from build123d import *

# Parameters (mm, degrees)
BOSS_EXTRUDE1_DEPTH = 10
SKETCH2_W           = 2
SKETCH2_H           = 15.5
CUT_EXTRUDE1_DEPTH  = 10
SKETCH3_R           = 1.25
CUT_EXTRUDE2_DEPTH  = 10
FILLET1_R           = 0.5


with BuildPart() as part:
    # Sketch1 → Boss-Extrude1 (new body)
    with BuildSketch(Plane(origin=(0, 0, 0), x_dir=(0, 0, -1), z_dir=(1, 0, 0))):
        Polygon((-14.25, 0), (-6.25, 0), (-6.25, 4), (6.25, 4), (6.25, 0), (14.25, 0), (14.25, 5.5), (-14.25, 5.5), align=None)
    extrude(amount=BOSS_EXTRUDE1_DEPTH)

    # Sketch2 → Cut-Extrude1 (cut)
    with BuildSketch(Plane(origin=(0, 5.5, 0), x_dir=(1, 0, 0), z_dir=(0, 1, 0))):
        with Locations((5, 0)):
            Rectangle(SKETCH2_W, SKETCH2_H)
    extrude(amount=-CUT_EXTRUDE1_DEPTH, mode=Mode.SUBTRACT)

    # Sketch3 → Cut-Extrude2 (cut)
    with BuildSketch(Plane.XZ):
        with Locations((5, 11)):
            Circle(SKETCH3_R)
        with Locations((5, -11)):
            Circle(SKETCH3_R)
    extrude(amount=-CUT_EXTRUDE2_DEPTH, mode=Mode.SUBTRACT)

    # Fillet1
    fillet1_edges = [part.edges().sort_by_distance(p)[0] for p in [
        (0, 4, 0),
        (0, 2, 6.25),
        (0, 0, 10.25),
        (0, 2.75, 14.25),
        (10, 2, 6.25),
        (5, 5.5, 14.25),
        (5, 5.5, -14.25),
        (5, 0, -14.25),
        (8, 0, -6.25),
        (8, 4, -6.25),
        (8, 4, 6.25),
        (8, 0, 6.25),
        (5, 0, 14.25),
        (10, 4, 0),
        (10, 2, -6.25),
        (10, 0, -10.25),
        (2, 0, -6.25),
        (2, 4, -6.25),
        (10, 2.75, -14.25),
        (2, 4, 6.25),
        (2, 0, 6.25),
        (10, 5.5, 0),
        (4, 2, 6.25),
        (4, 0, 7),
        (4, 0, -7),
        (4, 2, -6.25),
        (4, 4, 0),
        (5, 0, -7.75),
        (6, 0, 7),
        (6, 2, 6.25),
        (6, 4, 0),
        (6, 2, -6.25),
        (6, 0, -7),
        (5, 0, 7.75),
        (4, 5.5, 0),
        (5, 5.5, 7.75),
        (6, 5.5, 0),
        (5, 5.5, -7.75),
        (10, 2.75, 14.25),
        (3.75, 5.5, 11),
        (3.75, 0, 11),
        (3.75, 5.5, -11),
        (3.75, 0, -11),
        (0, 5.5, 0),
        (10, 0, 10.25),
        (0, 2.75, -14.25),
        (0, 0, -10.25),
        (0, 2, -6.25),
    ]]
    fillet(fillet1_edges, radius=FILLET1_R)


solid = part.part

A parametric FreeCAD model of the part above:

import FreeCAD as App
import Part
import Sketcher


def edges_at(feature, points):
    """Names of the edges that pass closest to the given points."""
    edges = feature.Shape.Edges
    near = lambda p: min(range(len(edges)), key=lambda i: edges[i].distToShape(Part.Vertex(*p))[0])
    return sorted({f"Edge{near(p) + 1}" for p in points})

doc = App.newDocument("Part")
body = doc.addObject("PartDesign::Body", "Body")

# Sketch on YZ plane
sketch1 = body.newObject("Sketcher::SketchObject", "Sketch")
sketch1.AttachmentSupport = (doc.getObject("YZ_Plane"), [""])
sketch1.MapMode = "FlatFace"
sketch1.addGeometry([
    Part.LineSegment(App.Vector(0, 14.25, 0), App.Vector(0, 6.25, 0)),  # 0
    Part.LineSegment(App.Vector(0, 6.25, 0), App.Vector(4, 6.25, 0)),  # 1
    Part.LineSegment(App.Vector(4, 6.25, 0), App.Vector(4, -6.25, 0)),  # 2
    Part.LineSegment(App.Vector(4, -6.25, 0), App.Vector(0, -6.25, 0)),  # 3
    Part.LineSegment(App.Vector(0, -6.25, 0), App.Vector(0, -14.25, 0)),  # 4
    Part.LineSegment(App.Vector(0, -14.25, 0), App.Vector(5.5, -14.25, 0)),  # 5
    Part.LineSegment(App.Vector(5.5, -14.25, 0), App.Vector(5.5, 14.25, 0)),  # 6
    Part.LineSegment(App.Vector(5.5, 14.25, 0), App.Vector(0, 14.25, 0)),  # 7
], False)
sketch1.addConstraint([
    Sketcher.Constraint("Coincident", 0, 2, 1, 1),
    Sketcher.Constraint("Coincident", 1, 2, 2, 1),
    Sketcher.Constraint("Coincident", 2, 2, 3, 1),
    Sketcher.Constraint("Coincident", 3, 2, 4, 1),
    Sketcher.Constraint("Coincident", 4, 2, 5, 1),
    Sketcher.Constraint("Coincident", 5, 2, 6, 1),
    Sketcher.Constraint("Coincident", 6, 2, 7, 1),
    Sketcher.Constraint("Coincident", 7, 2, 0, 1),
    Sketcher.Constraint("Vertical", 0),
    Sketcher.Constraint("Horizontal", 1),
    Sketcher.Constraint("Vertical", 2),
    Sketcher.Constraint("Horizontal", 3),
    Sketcher.Constraint("Vertical", 4),
    Sketcher.Constraint("Horizontal", 5),
    Sketcher.Constraint("Vertical", 6),
    Sketcher.Constraint("Horizontal", 7),
    Sketcher.Constraint("Symmetric", 0, 2, 3, 2, -1, 1),
    Sketcher.Constraint("Symmetric", 4, 2, 7, 2, -1),
    Sketcher.Constraint("DistanceX", 1, 1, 1, 2, 4.0),
    Sketcher.Constraint("DistanceY", 0, 2, 0, 1, 8.0),
    Sketcher.Constraint("DistanceX", 5, 1, 5, 2, 5.5),
    Sketcher.Constraint("DistanceY", 2, 2, 2, 1, 12.5),
])
pad1 = body.newObject("PartDesign::Pad", "Pad")
pad1.Profile = sketch1
pad1.Length = 10

# Sketch on XZ plane
sketch2 = body.newObject("Sketcher::SketchObject", "Sketch001")
sketch2.AttachmentSupport = (doc.getObject("XZ_Plane"), [""])
sketch2.MapMode = "FlatFace"
sketch2.AttachmentOffset = App.Placement(App.Vector(0, 0, -5.5), App.Rotation())
sketch2.addGeometry([
    Part.LineSegment(App.Vector(4, -7.75, 0), App.Vector(4, 7.75, 0)),
    Part.LineSegment(App.Vector(4, 7.75, 0), App.Vector(6, 7.75, 0)),
    Part.LineSegment(App.Vector(6, 7.75, 0), App.Vector(6, -7.75, 0)),
    Part.LineSegment(App.Vector(6, -7.75, 0), App.Vector(4, -7.75, 0)),
], False)
sketch2.addConstraint([
    Sketcher.Constraint("Coincident", 0, 2, 1, 1),
    Sketcher.Constraint("Coincident", 1, 2, 2, 1),
    Sketcher.Constraint("Coincident", 2, 2, 3, 1),
    Sketcher.Constraint("Coincident", 3, 2, 0, 1),
    Sketcher.Constraint("Vertical", 0),
    Sketcher.Constraint("Horizontal", 1),
    Sketcher.Constraint("Vertical", 2),
    Sketcher.Constraint("Horizontal", 3),
    Sketcher.Constraint("DistanceX", 1, 1, 1, 2, 2.0),
    Sketcher.Constraint("DistanceY", 0, 1, 0, 2, 15.5),
    Sketcher.Constraint("DistanceX", -1, 1, 0, 2, 4.0),
    Sketcher.Constraint("DistanceY", -1, 1, 0, 2, 7.75),
])
pocket1 = body.newObject("PartDesign::Pocket", "Pocket")
pocket1.Profile = sketch2
pocket1.Length = 10
pocket1.Reversed = True

# Sketch on XZ plane
sketch3 = body.newObject("Sketcher::SketchObject", "Sketch002")
sketch3.AttachmentSupport = (doc.getObject("XZ_Plane"), [""])
sketch3.MapMode = "FlatFace"
sketch3.addGeometry([
    Part.Circle(App.Vector(5, 11, 0), App.Vector(0, 0, 1), 1.25),
    Part.Circle(App.Vector(5, -11, 0), App.Vector(0, 0, 1), 1.25),
], False)
sketch3.addConstraint([
    Sketcher.Constraint("Equal", 0, 1),
    Sketcher.Constraint("Symmetric", 0, 3, 1, 3, -1),
    Sketcher.Constraint("Diameter", 0, 2.5),
    Sketcher.Constraint("DistanceX", -1, 1, 0, 3, 5.0),
    Sketcher.Constraint("DistanceY", -1, 1, 0, 3, 11.0),
])
pocket2 = body.newObject("PartDesign::Pocket", "Pocket001")
pocket2.Profile = sketch3
pocket2.Length = 10
doc.recompute()

fillet = body.newObject("PartDesign::Fillet", "Fillet")
fillet.Base = (pocket2, edges_at(pocket2, [
    (0, 4, 0),
    (0, 2, 6.25),
    (0, 0, 10.25),
    (0, 2.75, 14.25),
    (10, 2, 6.25),
    (5, 5.5, 14.25),
    (5, 5.5, -14.25),
    (5, 0, -14.25),
    (8, 0, -6.25),
    (8, 4, -6.25),
    (8, 4, 6.25),
    (8, 0, 6.25),
    (5, 0, 14.25),
    (10, 4, 0),
    (10, 2, -6.25),
    (10, 0, -10.25),
    (2, 0, -6.25),
    (2, 4, -6.25),
    (10, 2.75, -14.25),
    (2, 4, 6.25),
    (2, 0, 6.25),
    (10, 5.5, 0),
    (4, 2, 6.25),
    (4, 0, 7),
    (4, 0, -7),
    (4, 2, -6.25),
    (4, 4, 0),
    (5, 0, -7.75),
    (6, 0, 7),
    (6, 2, 6.25),
    (6, 4, 0),
    (6, 2, -6.25),
    (6, 0, -7),
    (5, 0, 7.75),
    (4, 5.5, 0),
    (5, 5.5, 7.75),
    (6, 5.5, 0),
    (5, 5.5, -7.75),
    (10, 2.75, 14.25),
    (3.75, 5.5, 11),
    (3.75, 0, 11),
    (3.75, 5.5, -11),
    (3.75, 0, -11),
    (0, 5.5, 0),
    (10, 0, 10.25),
    (0, 2.75, -14.25),
    (0, 0, -10.25),
    (0, 2, -6.25),
]))
fillet.Radius = 0.5

doc.recompute()
